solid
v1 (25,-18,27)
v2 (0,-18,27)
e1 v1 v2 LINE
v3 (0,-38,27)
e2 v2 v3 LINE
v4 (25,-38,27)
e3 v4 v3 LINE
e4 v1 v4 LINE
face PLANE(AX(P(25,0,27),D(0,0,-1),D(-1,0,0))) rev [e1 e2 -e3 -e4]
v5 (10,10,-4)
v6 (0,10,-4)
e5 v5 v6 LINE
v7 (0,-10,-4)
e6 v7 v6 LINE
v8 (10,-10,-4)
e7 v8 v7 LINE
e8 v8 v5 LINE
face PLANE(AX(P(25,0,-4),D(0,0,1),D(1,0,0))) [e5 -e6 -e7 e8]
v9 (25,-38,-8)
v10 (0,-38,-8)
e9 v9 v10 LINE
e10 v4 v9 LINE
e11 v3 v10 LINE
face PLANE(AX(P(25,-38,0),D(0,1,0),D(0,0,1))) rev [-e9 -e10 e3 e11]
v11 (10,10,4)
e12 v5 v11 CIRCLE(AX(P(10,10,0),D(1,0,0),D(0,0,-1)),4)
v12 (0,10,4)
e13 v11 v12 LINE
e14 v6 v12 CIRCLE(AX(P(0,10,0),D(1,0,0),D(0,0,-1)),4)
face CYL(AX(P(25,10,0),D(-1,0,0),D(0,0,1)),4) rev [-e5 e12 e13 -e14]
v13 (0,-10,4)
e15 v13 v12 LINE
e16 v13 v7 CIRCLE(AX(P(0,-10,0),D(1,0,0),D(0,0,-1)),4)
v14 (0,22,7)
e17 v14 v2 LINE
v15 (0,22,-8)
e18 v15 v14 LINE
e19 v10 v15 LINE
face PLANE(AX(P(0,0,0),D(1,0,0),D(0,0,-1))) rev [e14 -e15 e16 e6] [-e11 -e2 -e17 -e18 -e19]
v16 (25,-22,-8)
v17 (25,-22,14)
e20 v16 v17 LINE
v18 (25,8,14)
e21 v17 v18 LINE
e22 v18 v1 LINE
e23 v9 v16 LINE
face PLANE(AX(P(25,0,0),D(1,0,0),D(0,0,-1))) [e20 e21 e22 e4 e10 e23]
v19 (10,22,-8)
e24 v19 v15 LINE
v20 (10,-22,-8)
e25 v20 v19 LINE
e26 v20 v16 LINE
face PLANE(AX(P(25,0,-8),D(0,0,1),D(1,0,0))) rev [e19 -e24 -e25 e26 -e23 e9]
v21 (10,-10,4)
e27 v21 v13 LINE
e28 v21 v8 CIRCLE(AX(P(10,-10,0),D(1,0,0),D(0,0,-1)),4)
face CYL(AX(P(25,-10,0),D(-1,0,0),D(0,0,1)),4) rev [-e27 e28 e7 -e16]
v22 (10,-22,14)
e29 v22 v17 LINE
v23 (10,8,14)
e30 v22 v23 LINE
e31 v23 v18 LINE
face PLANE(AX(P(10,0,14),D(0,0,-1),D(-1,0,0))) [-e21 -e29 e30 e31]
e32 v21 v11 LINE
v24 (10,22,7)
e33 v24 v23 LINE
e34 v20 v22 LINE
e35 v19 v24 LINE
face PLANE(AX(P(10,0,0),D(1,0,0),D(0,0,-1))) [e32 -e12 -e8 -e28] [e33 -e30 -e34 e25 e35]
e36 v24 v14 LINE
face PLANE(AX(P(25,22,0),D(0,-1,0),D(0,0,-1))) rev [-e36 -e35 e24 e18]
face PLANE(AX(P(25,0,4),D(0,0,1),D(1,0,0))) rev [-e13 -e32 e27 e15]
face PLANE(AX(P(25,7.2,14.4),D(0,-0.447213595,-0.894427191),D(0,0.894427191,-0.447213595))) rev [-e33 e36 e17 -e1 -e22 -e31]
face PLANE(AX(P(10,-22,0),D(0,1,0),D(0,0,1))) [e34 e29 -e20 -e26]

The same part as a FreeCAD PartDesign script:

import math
import FreeCAD as App
import Part
import Sketcher
Q = App.Units.Quantity


def add_polygon(sketch, points):
    """Adds a closed chain of lines whose ends are joined by coincident constraints."""
    first, n = sketch.GeometryCount, len(points)
    for a, b in zip(points, points[1:] + points[:1]):
        sketch.addGeometry(Part.LineSegment(App.Vector(*a, 0), App.Vector(*b, 0)), False)
    for i in range(n):
        sketch.addConstraint(Sketcher.Constraint("Coincident", first + i, 2, first + (i + 1) % n, 1))

doc = App.newDocument("Part")
body = doc.addObject("PartDesign::Body", "Body")

# Sketch on YZ plane
sketch1 = body.newObject("Sketcher::SketchObject", "Sketch")
sketch1.AttachmentSupport = (doc.getObject("YZ_Plane"), [""])
sketch1.MapMode = "FlatFace"
add_polygon(sketch1, [(-38, 27), (-38, -8), (-22, -8), (-22, 14), (8, 14), (-18, 27)])  # lines 0-5
sketch1.addConstraint(Sketcher.Constraint("Vertical", 0))
sketch1.addConstraint(Sketcher.Constraint("Horizontal", 1))
sketch1.addConstraint(Sketcher.Constraint("Vertical", 2))
sketch1.addConstraint(Sketcher.Constraint("Horizontal", 3))
sketch1.addConstraint(Sketcher.Constraint("Horizontal", 5))
sketch1.addConstraint(Sketcher.Constraint("DistanceX", 1, 1, 1, 2, Q("16 mm")))
sketch1.addConstraint(Sketcher.Constraint("DistanceX", 3, 1, 3, 2, Q("30 mm")))
sketch1.addConstraint(Sketcher.Constraint("DistanceX", 5, 2, 5, 1, Q("20 mm")))
sketch1.addConstraint(Sketcher.Constraint("DistanceY", 0, 2, 0, 1, Q("35 mm")))
sketch1.addConstraint(Sketcher.Constraint("DistanceY", 2, 1, 2, 2, Q("22 mm")))
sketch1.addConstraint(Sketcher.Constraint("DistanceX", 0, 2, -1, 1, Q("38 mm")))
sketch1.addConstraint(Sketcher.Constraint("DistanceY", 0, 2, -1, 1, Q("8 mm")))
pad1 = body.newObject("PartDesign::Pad", "Pad")
pad1.Profile = sketch1
pad1.Length = 25

# Sketch on YZ plane
sketch2 = body.newObject("Sketcher::SketchObject", "Sketch001")
sketch2.AttachmentSupport = (doc.getObject("YZ_Plane"), [""])
sketch2.MapMode = "FlatFace"
add_polygon(sketch2, [(-22, 14), (-22, -8), (22, -8), (22, 7), (8, 14)])  # lines 0-4
sketch2.addGeometry(Part.LineSegment(App.Vector(10, -4, 0), App.Vector(-10, -4, 0)), False)  # 5
sketch2.addGeometry(Part.ArcOfCircle(Part.Circle(App.Vector(-10, 0, 0), App.Vector(0, 0, 1), 4), math.radians(90), math.radians(270)), False)  # 6
sketch2.addGeometry(Part.LineSegment(App.Vector(-10, 4, 0), App.Vector(10, 4, 0)), False)  # 7
sketch2.addGeometry(Part.ArcOfCircle(Part.Circle(App.Vector(10, 0, 0), App.Vector(0, 0, 1), 4), math.radians(-90), math.radians(90)), False)  # 8
sketch2.addConstraint(Sketcher.Constraint("Tangent", 5, 2, 6, 2))
sketch2.addConstraint(Sketcher.Constraint("Tangent", 6, 1, 7, 1))
sketch2.addConstraint(Sketcher.Constraint("Tangent", 7, 2, 8, 2))
sketch2.addConstraint(Sketcher.Constraint("Tangent", 8, 1, 5, 1))
sketch2.addConstraint(Sketcher.Constraint("Vertical", 0))
sketch2.addConstraint(Sketcher.Constraint("Horizontal", 1))
sketch2.addConstraint(Sketcher.Constraint("Vertical", 2))
sketch2.addConstraint(Sketcher.Constraint("Horizontal", 4))
sketch2.addConstraint(Sketcher.Constraint("Horizontal", 5))
sketch2.addConstraint(Sketcher.Constraint("Horizontal", 7))
sketch2.addConstraint(Sketcher.Constraint("Symmetric", 6, 3, 8, 3, -1, 1))
sketch2.addConstraint(Sketcher.Constraint("Radius", 6, Q("4 mm")))
sketch2.addConstraint(Sketcher.Constraint("DistanceX", 1, 1, 1, 2, Q("44 mm")))
sketch2.addConstraint(Sketcher.Constraint("DistanceX", 4, 2, 4, 1, Q("30 mm")))
sketch2.addConstraint(Sketcher.Constraint("DistanceX", 5, 2, 5, 1, Q("20 mm")))
sketch2.addConstraint(Sketcher.Constraint("DistanceY", 0, 2, 0, 1, Q("22 mm")))
sketch2.addConstraint(Sketcher.Constraint("DistanceY", 2, 1, 2, 2, Q("15 mm")))
sketch2.addConstraint(Sketcher.Constraint("DistanceX", 0, 2, -1, 1, Q("22 mm")))
sketch2.addConstraint(Sketcher.Constraint("DistanceY", 0, 2, -1, 1, Q("8 mm")))
pad2 = body.newObject("PartDesign::Pad", "Pad001")
pad2.Profile = sketch2
pad2.Length = 25

# Sketch on YZ plane
sketch3 = body.newObject("Sketcher::SketchObject", "Sketch002")
sketch3.AttachmentSupport = (doc.getObject("YZ_Plane"), [""])
sketch3.MapMode = "FlatFace"
sketch3.AttachmentOffset = App.Placement(App.Vector(0, 0, 10), App.Rotation())
add_polygon(sketch3, [(-22, 14), (-22, -8), (22, -8), (22, 7), (8, 14)])  # lines 0-4
sketch3.addGeometry(Part.LineSegment(App.Vector(10, -4, 0), App.Vector(-10, -4, 0)), False)  # 5
sketch3.addGeometry(Part.ArcOfCircle(Part.Circle(App.Vector(-10, 0, 0), App.Vector(0, 0, 1), 4), math.radians(90), math.radians(270)), False)  # 6
sketch3.addGeometry(Part.LineSegment(App.Vector(-10, 4, 0), App.Vector(10, 4, 0)), False)  # 7
sketch3.addGeometry(Part.ArcOfCircle(Part.Circle(App.Vector(10, 0, 0), App.Vector(0, 0, 1), 4), math.radians(-90), math.radians(90)), False)  # 8
sketch3.addConstraint(Sketcher.Constraint("Tangent", 5, 2, 6, 2))
sketch3.addConstraint(Sketcher.Constraint("Tangent", 6, 1, 7, 1))
sketch3.addConstraint(Sketcher.Constraint("Tangent", 7, 2, 8, 2))
sketch3.addConstraint(Sketcher.Constraint("Tangent", 8, 1, 5, 1))
sketch3.addConstraint(Sketcher.Constraint("Vertical", 0))
sketch3.addConstraint(Sketcher.Constraint("Horizontal", 1))
sketch3.addConstraint(Sketcher.Constraint("Vertical", 2))
sketch3.addConstraint(Sketcher.Constraint("Horizontal", 4))
sketch3.addConstraint(Sketcher.Constraint("Horizontal", 5))
sketch3.addConstraint(Sketcher.Constraint("Horizontal", 7))
sketch3.addConstraint(Sketcher.Constraint("Symmetric", 6, 3, 8, 3, -1, 1))
sketch3.addConstraint(Sketcher.Constraint("Radius", 6, Q("4 mm")))
sketch3.addConstraint(Sketcher.Constraint("DistanceX", 1, 1, 1, 2, Q("44 mm")))
sketch3.addConstraint(Sketcher.Constraint("DistanceX", 4, 2, 4, 1, Q("30 mm")))
sketch3.addConstraint(Sketcher.Constraint("DistanceX", 5, 2, 5, 1, Q("20 mm")))
sketch3.addConstraint(Sketcher.Constraint("DistanceY", 0, 2, 0, 1, Q("22 mm")))
sketch3.addConstraint(Sketcher.Constraint("DistanceY", 2, 1, 2, 2, Q("15 mm")))
sketch3.addConstraint(Sketcher.Constraint("DistanceX", 0, 2, -1, 1, Q("22 mm")))
sketch3.addConstraint(Sketcher.Constraint("DistanceY", 0, 2, -1, 1, Q("8 mm")))
pocket1 = body.newObject("PartDesign::Pocket", "Pocket")
pocket1.Profile = sketch3
pocket1.Length = 15
pocket1.Reversed = True

doc.recompute()
